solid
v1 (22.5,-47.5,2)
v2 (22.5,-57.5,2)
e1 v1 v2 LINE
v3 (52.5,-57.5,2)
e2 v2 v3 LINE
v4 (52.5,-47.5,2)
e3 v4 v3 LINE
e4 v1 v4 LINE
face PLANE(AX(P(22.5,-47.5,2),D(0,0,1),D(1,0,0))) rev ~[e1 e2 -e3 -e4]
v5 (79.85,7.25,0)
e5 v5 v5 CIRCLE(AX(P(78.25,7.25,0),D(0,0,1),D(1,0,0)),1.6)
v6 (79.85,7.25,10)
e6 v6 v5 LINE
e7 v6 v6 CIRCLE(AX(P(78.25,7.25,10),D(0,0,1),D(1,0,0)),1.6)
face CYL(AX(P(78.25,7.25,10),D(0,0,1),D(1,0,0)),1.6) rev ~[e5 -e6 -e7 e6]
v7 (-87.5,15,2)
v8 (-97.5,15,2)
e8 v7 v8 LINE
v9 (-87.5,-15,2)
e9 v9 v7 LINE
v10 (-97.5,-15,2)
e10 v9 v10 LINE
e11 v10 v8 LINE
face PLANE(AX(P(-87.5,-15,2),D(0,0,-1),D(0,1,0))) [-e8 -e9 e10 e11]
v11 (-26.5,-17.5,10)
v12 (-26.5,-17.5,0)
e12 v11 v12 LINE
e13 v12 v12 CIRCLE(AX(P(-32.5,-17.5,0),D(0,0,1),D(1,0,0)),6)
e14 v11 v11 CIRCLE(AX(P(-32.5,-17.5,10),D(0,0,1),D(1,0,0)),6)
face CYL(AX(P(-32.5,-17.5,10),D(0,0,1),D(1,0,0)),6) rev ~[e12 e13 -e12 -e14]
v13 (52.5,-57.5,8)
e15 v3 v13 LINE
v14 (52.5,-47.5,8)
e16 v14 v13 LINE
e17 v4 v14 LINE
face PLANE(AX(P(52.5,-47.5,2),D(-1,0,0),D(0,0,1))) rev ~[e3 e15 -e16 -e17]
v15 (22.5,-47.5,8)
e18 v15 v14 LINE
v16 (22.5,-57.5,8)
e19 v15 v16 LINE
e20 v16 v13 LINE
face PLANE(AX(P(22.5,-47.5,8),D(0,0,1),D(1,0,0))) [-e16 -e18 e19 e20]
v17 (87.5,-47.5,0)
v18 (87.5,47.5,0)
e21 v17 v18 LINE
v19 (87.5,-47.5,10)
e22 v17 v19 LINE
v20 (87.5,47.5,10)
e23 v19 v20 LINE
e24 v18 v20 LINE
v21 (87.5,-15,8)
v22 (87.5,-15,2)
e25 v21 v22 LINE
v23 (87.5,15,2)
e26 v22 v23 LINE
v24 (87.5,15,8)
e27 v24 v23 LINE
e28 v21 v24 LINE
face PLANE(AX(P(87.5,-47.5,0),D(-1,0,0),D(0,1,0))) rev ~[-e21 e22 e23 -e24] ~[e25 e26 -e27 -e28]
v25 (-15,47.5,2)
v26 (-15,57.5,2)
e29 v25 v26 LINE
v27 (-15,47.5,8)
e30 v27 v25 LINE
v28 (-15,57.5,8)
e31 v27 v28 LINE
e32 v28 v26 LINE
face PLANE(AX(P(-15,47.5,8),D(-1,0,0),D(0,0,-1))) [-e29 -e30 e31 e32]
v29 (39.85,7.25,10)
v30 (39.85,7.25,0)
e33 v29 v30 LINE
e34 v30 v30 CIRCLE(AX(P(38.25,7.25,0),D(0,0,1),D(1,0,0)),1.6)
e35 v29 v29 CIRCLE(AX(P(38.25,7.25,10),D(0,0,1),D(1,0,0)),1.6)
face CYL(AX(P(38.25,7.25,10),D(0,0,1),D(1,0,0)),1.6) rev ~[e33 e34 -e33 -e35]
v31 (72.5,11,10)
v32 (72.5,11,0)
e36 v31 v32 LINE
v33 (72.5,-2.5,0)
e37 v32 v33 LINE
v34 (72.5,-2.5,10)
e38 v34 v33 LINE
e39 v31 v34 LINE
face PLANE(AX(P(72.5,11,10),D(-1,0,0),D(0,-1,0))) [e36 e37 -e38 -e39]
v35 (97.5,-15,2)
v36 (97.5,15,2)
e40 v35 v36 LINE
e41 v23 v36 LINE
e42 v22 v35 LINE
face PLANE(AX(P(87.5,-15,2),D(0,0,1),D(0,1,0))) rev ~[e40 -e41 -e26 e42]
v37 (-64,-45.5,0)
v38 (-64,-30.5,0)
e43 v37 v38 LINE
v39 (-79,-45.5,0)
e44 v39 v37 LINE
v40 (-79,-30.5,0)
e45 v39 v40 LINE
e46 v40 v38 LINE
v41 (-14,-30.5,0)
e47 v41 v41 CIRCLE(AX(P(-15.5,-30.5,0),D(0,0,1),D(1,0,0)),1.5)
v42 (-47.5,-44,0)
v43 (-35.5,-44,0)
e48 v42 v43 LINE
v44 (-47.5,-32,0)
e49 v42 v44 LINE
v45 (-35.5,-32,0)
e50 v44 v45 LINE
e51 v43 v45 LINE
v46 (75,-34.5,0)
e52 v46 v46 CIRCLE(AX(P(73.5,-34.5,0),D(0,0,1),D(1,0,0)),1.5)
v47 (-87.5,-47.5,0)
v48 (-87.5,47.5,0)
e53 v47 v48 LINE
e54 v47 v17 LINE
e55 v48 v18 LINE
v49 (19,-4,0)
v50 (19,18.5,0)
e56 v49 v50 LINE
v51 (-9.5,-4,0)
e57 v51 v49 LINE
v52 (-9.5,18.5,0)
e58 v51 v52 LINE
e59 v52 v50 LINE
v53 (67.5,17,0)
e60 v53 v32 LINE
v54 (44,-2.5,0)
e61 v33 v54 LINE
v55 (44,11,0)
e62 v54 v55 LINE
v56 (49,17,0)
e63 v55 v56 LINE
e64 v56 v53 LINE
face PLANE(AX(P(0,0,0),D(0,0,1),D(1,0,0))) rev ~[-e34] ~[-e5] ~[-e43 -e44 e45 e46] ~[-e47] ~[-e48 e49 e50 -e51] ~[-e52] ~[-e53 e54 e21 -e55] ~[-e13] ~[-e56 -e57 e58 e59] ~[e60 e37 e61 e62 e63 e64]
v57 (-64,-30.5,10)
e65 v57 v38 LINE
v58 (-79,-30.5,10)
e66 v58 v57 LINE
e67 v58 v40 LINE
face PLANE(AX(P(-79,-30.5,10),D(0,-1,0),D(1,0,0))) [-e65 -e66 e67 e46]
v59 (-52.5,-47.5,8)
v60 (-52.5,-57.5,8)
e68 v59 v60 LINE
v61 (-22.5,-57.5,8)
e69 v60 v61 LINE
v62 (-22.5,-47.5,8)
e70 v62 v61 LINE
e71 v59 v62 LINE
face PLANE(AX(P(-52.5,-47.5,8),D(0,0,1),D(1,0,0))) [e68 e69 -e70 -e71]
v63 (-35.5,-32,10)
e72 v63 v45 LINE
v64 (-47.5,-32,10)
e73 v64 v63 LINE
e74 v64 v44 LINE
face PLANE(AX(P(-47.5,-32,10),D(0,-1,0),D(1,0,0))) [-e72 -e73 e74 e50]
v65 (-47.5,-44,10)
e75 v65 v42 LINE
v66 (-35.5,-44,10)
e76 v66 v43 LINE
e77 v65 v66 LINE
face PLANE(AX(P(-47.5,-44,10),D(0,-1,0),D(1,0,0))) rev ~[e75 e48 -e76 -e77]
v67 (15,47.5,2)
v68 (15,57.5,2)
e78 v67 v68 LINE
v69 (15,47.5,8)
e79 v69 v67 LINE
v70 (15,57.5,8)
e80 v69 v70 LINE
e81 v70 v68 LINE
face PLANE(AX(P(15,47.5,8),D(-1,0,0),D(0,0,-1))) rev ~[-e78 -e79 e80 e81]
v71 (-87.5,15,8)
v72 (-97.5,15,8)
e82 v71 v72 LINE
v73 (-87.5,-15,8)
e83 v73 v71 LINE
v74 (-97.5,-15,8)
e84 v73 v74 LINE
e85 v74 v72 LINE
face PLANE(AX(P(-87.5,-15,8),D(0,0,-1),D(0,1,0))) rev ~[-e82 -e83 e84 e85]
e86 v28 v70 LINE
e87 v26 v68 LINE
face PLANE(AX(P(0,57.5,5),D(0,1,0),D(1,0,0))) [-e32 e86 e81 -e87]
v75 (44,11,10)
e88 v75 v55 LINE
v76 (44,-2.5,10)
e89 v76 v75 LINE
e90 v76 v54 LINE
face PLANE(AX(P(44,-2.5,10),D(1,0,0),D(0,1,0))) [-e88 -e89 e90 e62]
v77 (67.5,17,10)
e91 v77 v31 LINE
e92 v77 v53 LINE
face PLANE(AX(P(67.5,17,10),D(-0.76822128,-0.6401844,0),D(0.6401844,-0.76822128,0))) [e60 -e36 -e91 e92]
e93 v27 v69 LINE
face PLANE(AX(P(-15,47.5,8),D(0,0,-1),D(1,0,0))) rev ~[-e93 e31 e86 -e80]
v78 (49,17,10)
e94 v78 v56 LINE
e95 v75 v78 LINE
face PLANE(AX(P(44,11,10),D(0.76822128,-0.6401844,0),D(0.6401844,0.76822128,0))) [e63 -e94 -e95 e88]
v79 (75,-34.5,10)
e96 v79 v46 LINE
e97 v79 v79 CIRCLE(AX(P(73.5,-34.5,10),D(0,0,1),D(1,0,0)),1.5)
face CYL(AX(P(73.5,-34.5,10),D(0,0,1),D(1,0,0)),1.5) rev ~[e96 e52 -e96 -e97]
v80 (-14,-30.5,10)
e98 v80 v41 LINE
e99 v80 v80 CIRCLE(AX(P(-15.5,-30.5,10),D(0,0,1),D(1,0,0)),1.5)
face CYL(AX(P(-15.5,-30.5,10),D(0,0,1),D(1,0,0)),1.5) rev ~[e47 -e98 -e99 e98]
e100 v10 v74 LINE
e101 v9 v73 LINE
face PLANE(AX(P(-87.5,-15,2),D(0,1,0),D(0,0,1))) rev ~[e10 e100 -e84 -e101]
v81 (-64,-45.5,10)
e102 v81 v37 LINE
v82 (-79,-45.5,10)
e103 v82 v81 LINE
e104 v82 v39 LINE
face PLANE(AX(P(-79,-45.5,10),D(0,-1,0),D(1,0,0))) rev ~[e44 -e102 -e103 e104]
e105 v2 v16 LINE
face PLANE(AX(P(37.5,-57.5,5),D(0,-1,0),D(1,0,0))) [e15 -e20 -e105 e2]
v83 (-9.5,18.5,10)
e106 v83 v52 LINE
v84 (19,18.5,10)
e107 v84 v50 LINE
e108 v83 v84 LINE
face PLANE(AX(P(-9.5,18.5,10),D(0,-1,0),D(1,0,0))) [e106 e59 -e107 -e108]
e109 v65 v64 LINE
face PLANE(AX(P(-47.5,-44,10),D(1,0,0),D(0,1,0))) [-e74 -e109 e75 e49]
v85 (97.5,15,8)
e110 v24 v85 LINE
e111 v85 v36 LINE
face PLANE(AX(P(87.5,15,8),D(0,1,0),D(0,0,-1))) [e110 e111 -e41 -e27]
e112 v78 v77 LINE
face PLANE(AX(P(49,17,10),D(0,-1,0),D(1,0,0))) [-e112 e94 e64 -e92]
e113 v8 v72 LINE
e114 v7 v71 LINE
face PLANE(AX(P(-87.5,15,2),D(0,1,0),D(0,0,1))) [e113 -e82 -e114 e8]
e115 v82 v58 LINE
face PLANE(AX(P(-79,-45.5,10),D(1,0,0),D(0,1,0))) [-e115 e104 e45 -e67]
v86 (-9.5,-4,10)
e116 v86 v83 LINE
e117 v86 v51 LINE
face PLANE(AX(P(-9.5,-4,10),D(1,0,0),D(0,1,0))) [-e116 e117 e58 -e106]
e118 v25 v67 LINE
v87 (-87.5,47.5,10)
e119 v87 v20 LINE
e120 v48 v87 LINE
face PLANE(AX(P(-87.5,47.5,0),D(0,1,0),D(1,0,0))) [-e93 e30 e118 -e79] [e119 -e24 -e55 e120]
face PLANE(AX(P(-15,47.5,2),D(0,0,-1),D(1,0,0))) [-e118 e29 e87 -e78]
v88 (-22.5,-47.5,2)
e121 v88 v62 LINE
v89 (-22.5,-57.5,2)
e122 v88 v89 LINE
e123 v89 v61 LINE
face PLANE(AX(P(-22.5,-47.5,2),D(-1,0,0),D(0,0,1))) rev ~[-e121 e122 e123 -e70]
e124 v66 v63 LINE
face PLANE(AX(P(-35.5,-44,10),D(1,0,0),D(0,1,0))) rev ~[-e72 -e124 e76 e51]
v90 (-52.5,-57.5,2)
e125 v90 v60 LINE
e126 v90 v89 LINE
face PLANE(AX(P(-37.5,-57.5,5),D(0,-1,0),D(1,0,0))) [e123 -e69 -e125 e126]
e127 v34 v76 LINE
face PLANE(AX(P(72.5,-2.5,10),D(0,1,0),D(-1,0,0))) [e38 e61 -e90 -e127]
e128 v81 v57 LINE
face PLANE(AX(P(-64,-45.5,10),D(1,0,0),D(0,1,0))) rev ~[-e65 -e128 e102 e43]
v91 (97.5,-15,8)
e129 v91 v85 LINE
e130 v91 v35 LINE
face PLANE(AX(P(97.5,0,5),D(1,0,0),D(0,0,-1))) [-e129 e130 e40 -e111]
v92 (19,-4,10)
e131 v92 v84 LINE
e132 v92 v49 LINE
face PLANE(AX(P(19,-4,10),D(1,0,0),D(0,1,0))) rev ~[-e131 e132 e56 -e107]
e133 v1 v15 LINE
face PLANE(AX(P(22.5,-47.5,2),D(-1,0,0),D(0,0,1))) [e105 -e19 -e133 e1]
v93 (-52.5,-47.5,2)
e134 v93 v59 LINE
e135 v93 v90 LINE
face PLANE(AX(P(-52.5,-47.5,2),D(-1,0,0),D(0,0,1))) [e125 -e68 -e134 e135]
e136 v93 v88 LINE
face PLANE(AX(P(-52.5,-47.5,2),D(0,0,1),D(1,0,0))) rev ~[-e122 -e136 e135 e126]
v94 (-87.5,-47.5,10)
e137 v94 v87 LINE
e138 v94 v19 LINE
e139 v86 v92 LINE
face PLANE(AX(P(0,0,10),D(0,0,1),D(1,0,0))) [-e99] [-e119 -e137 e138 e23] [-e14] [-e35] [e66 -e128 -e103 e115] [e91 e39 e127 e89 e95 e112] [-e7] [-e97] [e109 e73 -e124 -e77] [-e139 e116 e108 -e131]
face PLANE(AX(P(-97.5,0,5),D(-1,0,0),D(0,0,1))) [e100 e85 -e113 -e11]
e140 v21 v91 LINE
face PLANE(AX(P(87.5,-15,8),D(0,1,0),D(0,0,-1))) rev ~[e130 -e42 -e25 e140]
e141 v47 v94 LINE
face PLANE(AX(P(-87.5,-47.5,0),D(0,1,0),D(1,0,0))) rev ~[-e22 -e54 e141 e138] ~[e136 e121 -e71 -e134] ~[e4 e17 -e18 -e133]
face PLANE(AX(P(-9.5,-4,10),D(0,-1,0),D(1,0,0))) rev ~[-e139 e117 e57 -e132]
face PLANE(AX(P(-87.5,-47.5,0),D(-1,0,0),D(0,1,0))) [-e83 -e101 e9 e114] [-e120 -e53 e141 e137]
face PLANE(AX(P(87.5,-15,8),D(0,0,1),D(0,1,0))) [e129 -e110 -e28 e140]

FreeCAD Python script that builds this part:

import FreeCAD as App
import Part
import Sketcher

V = App.Vector


def add_polygon(sketch, points):
    """Adds a closed chain of lines whose ends are joined by coincident constraints."""
    first, n = sketch.GeometryCount, len(points)
    for a, b in zip(points, points[1:] + points[:1]):
        sketch.addGeometry(Part.LineSegment(App.Vector(*a, 0), App.Vector(*b, 0)), False)
    for i in range(n):
        sketch.addConstraint(Sketcher.Constraint("Coincident", first + i, 2, first + (i + 1) % n, 1))

doc = App.newDocument("Part")
body = doc.addObject("PartDesign::Body", "Body")

# Sketch on XY plane
sketch1 = body.newObject("Sketcher::SketchObject", "Sketch")
sketch1.AttachmentSupport = (doc.getObject("XY_Plane"), [""])
sketch1.MapMode = "FlatFace"
add_polygon(sketch1, [(-88, 48), (-88, -48), (88, -48), (88, 48)])  # lines 0-3
sketch1.addConstraint(Sketcher.Constraint("Vertical", 0))
sketch1.addConstraint(Sketcher.Constraint("Horizontal", 1))
sketch1.addConstraint(Sketcher.Constraint("Vertical", 2))
sketch1.addConstraint(Sketcher.Constraint("Horizontal", 3))
sketch1.addConstraint(Sketcher.Constraint("Symmetric", 0, 2, 2, 2, -1, 1))
sketch1.addConstraint(Sketcher.Constraint("DistanceX", 1, 1, 1, 2, 175.0))
sketch1.addConstraint(Sketcher.Constraint("DistanceY", 0, 2, 0, 1, 95.0))
pad1 = body.newObject("PartDesign::Pad", "Pad")
pad1.Profile = sketch1
pad1.Length = 10

# Sketch on YZ plane
sketch2 = body.newObject("Sketcher::SketchObject", "Sketch001")
sketch2.AttachmentSupport = (doc.getObject("YZ_Plane"), [""])
sketch2.MapMode = "FlatFace"
sketch2.AttachmentOffset = App.Placement(V(0, 0, -87.5), App.Rotation())
add_polygon(sketch2, [(15, 2), (-15, 2), (-15, 8), (15, 8)])  # lines 0-3
sketch2.addConstraint(Sketcher.Constraint("Horizontal", 0))
sketch2.addConstraint(Sketcher.Constraint("Vertical", 1))
sketch2.addConstraint(Sketcher.Constraint("Horizontal", 2))
sketch2.addConstraint(Sketcher.Constraint("Vertical", 3))
sketch2.addConstraint(Sketcher.Constraint("DistanceX", 0, 2, 0, 1, 30.0))
sketch2.addConstraint(Sketcher.Constraint("DistanceY", 1, 1, 1, 2, 6.0))
sketch2.addConstraint(Sketcher.Constraint("DistanceX", 0, 2, -1, 1, 15.0))
sketch2.addConstraint(Sketcher.Constraint("DistanceY", -1, 1, 0, 2, 2.0))
pad2 = body.newObject("PartDesign::Pad", "Pad001")
pad2.Profile = sketch2
pad2.Length = 10
pad2.Reversed = True

# Sketch on YZ plane
sketch3 = body.newObject("Sketcher::SketchObject", "Sketch002")
sketch3.AttachmentSupport = (doc.getObject("YZ_Plane"), [""])
sketch3.MapMode = "FlatFace"
sketch3.AttachmentOffset = App.Placement(V(0, 0, 87.5), App.Rotation())
add_polygon(sketch3, [(15, 8), (-15, 8), (-15, 2), (15, 2)])  # lines 0-3
sketch3.addConstraint(Sketcher.Constraint("Horizontal", 0))
sketch3.addConstraint(Sketcher.Constraint("Vertical", 1))
sketch3.addConstraint(Sketcher.Constraint("Horizontal", 2))
sketch3.addConstraint(Sketcher.Constraint("Vertical", 3))
sketch3.addConstraint(Sketcher.Constraint("DistanceX", 0, 2, 0, 1, 30.0))
sketch3.addConstraint(Sketcher.Constraint("DistanceY", 1, 2, 1, 1, 6.0))
sketch3.addConstraint(Sketcher.Constraint("DistanceX", 0, 2, -1, 1, 15.0))
sketch3.addConstraint(Sketcher.Constraint("DistanceY", -1, 1, 0, 2, 8.0))
pad3 = body.newObject("PartDesign::Pad", "Pad002")
pad3.Profile = sketch3
pad3.Length = 10

# Sketch on XZ plane
sketch4 = body.newObject("Sketcher::SketchObject", "Sketch003")
sketch4.AttachmentSupport = (doc.getObject("XZ_Plane"), [""])
sketch4.MapMode = "FlatFace"
sketch4.AttachmentOffset = App.Placement(V(0, 0, 47.5), App.Rotation())
add_polygon(sketch4, [(22, 8), (22, 2), (52, 2), (52, 8)])  # lines 0-3
add_polygon(sketch4, [(-52, 8), (-52, 2), (-22, 2), (-22, 8)])  # lines 4-7
sketch4.addConstraint(Sketcher.Constraint("Vertical", 0))
sketch4.addConstraint(Sketcher.Constraint("Horizontal", 1))
sketch4.addConstraint(Sketcher.Constraint("Vertical", 2))
sketch4.addConstraint(Sketcher.Constraint("Horizontal", 3))
sketch4.addConstraint(Sketcher.Constraint("Vertical", 4))
sketch4.addConstraint(Sketcher.Constraint("Horizontal", 5))
sketch4.addConstraint(Sketcher.Constraint("Vertical", 6))
sketch4.addConstraint(Sketcher.Constraint("Horizontal", 7))
sketch4.addConstraint(Sketcher.Constraint("Symmetric", 1, 2, 4, 2, -2))
sketch4.addConstraint(Sketcher.Constraint("Symmetric", 3, 2, 6, 2, -2))
sketch4.addConstraint(Sketcher.Constraint("DistanceX", 1, 1, 1, 2, 30.0))
sketch4.addConstraint(Sketcher.Constraint("DistanceY", 0, 2, 0, 1, 6.0))
sketch4.addConstraint(Sketcher.Constraint("DistanceY", -1, 1, 0, 2, 2.0))
sketch4.addConstraint(Sketcher.Constraint("DistanceX", 4, 2, 0, 2, 75.0))
pad4 = body.newObject("PartDesign::Pad", "Pad003")
pad4.Profile = sketch4
pad4.Length = 10

# Sketch on XZ plane
sketch5 = body.newObject("Sketcher::SketchObject", "Sketch004")
sketch5.AttachmentSupport = (doc.getObject("XZ_Plane"), [""])
sketch5.MapMode = "FlatFace"
sketch5.AttachmentOffset = App.Placement(V(0, 0, -47.5), App.Rotation())
add_polygon(sketch5, [(-15, 2), (-15, 8), (15, 8), (15, 2)])  # lines 0-3
sketch5.addConstraint(Sketcher.Constraint("Vertical", 0))
sketch5.addConstraint(Sketcher.Constraint("Horizontal", 1))
sketch5.addConstraint(Sketcher.Constraint("Vertical", 2))
sketch5.addConstraint(Sketcher.Constraint("Horizontal", 3))
sketch5.addConstraint(Sketcher.Constraint("DistanceX", 1, 1, 1, 2, 30.0))
sketch5.addConstraint(Sketcher.Constraint("DistanceY", 0, 1, 0, 2, 6.0))
sketch5.addConstraint(Sketcher.Constraint("DistanceX", 0, 2, -1, 1, 15.0))
sketch5.addConstraint(Sketcher.Constraint("DistanceY", -1, 1, 0, 2, 8.0))
pad5 = body.newObject("PartDesign::Pad", "Pad004")
pad5.Profile = sketch5
pad5.Length = 10
pad5.Reversed = True

# Sketch on XY plane
sketch6 = body.newObject("Sketcher::SketchObject", "Sketch005")
sketch6.AttachmentSupport = (doc.getObject("XY_Plane"), [""])
sketch6.MapMode = "FlatFace"
sketch6.AttachmentOffset = App.Placement(V(0, 0, 10), App.Rotation())
sketch6.addGeometry(Part.Circle(V(73.5, -34.5, 0), V(0, 0, 1), 1.5), False)  # 0
sketch6.addGeometry(Part.Circle(V(-15.5, -30.5, 0), V(0, 0, 1), 1.5), False)  # 1
sketch6.addGeometry(Part.Circle(V(78.2, 7.2, 0), V(0, 0, 1), 1.6), False)  # 2
sketch6.addGeometry(Part.Circle(V(38.2, 7.2, 0), V(0, 0, 1), 1.6), False)  # 3
sketch6.addGeometry(Part.Circle(V(-32.5, -17.5, 0), V(0, 0, 1), 6), False)  # 4
add_polygon(sketch6, [(44, -2.5), (72.5, -2.5), (72.5, 11), (67.5, 17), (49, 17), (44, 11)])  # lines 5-10
add_polygon(sketch6, [(-9.5, 18.5), (-9.5, -4), (19, -4), (19, 18.5)])  # lines 11-14
add_polygon(sketch6, [(-79, -30.5), (-79, -45.5), (-64, -45.5), (-64, -30.5)])  # lines 15-18
add_polygon(sketch6, [(-47.5, -32), (-47.5, -44), (-35.5, -44), (-35.5, -32)])  # lines 19-22
sketch6.addConstraint(Sketcher.Constraint("Horizontal", 5))
sketch6.addConstraint(Sketcher.Constraint("Vertical", 6))
sketch6.addConstraint(Sketcher.Constraint("Horizontal", 8))
sketch6.addConstraint(Sketcher.Constraint("Vertical", 10))
sketch6.addConstraint(Sketcher.Constraint("Vertical", 11))
sketch6.addConstraint(Sketcher.Constraint("Horizontal", 12))
sketch6.addConstraint(Sketcher.Constraint("Vertical", 13))
sketch6.addConstraint(Sketcher.Constraint("Horizontal", 14))
sketch6.addConstraint(Sketcher.Constraint("Vertical", 15))
sketch6.addConstraint(Sketcher.Constraint("Horizontal", 16))
sketch6.addConstraint(Sketcher.Constraint("Vertical", 17))
sketch6.addConstraint(Sketcher.Constraint("Horizontal", 18))
sketch6.addConstraint(Sketcher.Constraint("Vertical", 19))
sketch6.addConstraint(Sketcher.Constraint("Horizontal", 20))
sketch6.addConstraint(Sketcher.Constraint("Vertical", 21))
sketch6.addConstraint(Sketcher.Constraint("Horizontal", 22))
sketch6.addConstraint(Sketcher.Constraint("Equal", 0, 1))
sketch6.addConstraint(Sketcher.Constraint("Equal", 2, 3))
sketch6.addConstraint(Sketcher.Constraint("Horizontal", 2, 3, 3, 3))
sketch6.addConstraint(Sketcher.Constraint("Horizontal", 6, 2, 9, 2))
sketch6.addConstraint(Sketcher.Constraint("Horizontal", 1, 3, 17, 2))
sketch6.addConstraint(Sketcher.Constraint("Equal", 5, 12))
sketch6.addConstraint(Sketcher.Constraint("Equal", 18, 15))
sketch6.addConstraint(Sketcher.Constraint("Equal", 22, 19))
sketch6.addConstraint(Sketcher.Constraint("Equal", 7, 9))
sketch6.addConstraint(Sketcher.Constraint("Diameter", 0, 3.0))
sketch6.addConstraint(Sketcher.Constraint("Diameter", 4, 12.0))
sketch6.addConstraint(Sketcher.Constraint("Diameter", 2, 3.2))
sketch6.addConstraint(Sketcher.Constraint("DistanceX", 16, 1, 16, 2, 15.0))
sketch6.addConstraint(Sketcher.Constraint("DistanceX", 20, 1, 20, 2, 12.0))
sketch6.addConstraint(Sketcher.Constraint("DistanceX", 5, 1, 5, 2, 28.5))
sketch6.addConstraint(Sketcher.Constraint("DistanceX", 8, 2, 8, 1, 18.5))
sketch6.addConstraint(Sketcher.Constraint("DistanceY", 6, 1, 6, 2, 13.5))
sketch6.addConstraint(Sketcher.Constraint("DistanceY", 11, 2, 11, 1, 22.5))
sketch6.addConstraint(Sketcher.Constraint("DistanceY", -1, 1, 6, 2, 11.0))
sketch6.addConstraint(Sketcher.Constraint("DistanceY", -1, 1, 7, 2, 17.0))
sketch6.addConstraint(Sketcher.Constraint("DistanceX", -1, 1, 8, 2, 49.0))
sketch6.addConstraint(Sketcher.Constraint("DistanceY", 11, 2, -1, 1, 4.0))
sketch6.addConstraint(Sketcher.Constraint("DistanceX", -1, 1, 12, 2, 19.0))
sketch6.addConstraint(Sketcher.Constraint("DistanceX", 15, 2, -1, 1, 79.0))
sketch6.addConstraint(Sketcher.Constraint("DistanceY", 19, 2, -1, 1, 44.0))
sketch6.addConstraint(Sketcher.Constraint("DistanceX", 1, 3, 0, 3, 89.0))
sketch6.addConstraint(Sketcher.Constraint("DistanceY", 0, 3, 1, 3, 4.0))
sketch6.addConstraint(Sketcher.Constraint("DistanceX", 3, 3, 2, 3, 40.0))
sketch6.addConstraint(Sketcher.Constraint("DistanceX", 4, 3, 1, 3, 17.0))
sketch6.addConstraint(Sketcher.Constraint("DistanceY", 1, 3, 4, 3, 13.0))
sketch6.addConstraint(Sketcher.Constraint("DistanceX", 5, 2, 0, 3, 1.0))
sketch6.addConstraint(Sketcher.Constraint("DistanceY", 0, 3, 5, 2, 32.0))
sketch6.addConstraint(Sketcher.Constraint("DistanceX", 19, 2, 4, 3, 15.0))
sketch6.addConstraint(Sketcher.Constraint("DistanceX", -1, 1, 2, 3, 78.25))
sketch6.addConstraint(Sketcher.Constraint("DistanceY", -1, 1, 2, 3, 7.25))
pocket1 = body.newObject("PartDesign::Pocket", "Pocket")
pocket1.Profile = sketch6
pocket1.Length = 10

doc.recompute()
